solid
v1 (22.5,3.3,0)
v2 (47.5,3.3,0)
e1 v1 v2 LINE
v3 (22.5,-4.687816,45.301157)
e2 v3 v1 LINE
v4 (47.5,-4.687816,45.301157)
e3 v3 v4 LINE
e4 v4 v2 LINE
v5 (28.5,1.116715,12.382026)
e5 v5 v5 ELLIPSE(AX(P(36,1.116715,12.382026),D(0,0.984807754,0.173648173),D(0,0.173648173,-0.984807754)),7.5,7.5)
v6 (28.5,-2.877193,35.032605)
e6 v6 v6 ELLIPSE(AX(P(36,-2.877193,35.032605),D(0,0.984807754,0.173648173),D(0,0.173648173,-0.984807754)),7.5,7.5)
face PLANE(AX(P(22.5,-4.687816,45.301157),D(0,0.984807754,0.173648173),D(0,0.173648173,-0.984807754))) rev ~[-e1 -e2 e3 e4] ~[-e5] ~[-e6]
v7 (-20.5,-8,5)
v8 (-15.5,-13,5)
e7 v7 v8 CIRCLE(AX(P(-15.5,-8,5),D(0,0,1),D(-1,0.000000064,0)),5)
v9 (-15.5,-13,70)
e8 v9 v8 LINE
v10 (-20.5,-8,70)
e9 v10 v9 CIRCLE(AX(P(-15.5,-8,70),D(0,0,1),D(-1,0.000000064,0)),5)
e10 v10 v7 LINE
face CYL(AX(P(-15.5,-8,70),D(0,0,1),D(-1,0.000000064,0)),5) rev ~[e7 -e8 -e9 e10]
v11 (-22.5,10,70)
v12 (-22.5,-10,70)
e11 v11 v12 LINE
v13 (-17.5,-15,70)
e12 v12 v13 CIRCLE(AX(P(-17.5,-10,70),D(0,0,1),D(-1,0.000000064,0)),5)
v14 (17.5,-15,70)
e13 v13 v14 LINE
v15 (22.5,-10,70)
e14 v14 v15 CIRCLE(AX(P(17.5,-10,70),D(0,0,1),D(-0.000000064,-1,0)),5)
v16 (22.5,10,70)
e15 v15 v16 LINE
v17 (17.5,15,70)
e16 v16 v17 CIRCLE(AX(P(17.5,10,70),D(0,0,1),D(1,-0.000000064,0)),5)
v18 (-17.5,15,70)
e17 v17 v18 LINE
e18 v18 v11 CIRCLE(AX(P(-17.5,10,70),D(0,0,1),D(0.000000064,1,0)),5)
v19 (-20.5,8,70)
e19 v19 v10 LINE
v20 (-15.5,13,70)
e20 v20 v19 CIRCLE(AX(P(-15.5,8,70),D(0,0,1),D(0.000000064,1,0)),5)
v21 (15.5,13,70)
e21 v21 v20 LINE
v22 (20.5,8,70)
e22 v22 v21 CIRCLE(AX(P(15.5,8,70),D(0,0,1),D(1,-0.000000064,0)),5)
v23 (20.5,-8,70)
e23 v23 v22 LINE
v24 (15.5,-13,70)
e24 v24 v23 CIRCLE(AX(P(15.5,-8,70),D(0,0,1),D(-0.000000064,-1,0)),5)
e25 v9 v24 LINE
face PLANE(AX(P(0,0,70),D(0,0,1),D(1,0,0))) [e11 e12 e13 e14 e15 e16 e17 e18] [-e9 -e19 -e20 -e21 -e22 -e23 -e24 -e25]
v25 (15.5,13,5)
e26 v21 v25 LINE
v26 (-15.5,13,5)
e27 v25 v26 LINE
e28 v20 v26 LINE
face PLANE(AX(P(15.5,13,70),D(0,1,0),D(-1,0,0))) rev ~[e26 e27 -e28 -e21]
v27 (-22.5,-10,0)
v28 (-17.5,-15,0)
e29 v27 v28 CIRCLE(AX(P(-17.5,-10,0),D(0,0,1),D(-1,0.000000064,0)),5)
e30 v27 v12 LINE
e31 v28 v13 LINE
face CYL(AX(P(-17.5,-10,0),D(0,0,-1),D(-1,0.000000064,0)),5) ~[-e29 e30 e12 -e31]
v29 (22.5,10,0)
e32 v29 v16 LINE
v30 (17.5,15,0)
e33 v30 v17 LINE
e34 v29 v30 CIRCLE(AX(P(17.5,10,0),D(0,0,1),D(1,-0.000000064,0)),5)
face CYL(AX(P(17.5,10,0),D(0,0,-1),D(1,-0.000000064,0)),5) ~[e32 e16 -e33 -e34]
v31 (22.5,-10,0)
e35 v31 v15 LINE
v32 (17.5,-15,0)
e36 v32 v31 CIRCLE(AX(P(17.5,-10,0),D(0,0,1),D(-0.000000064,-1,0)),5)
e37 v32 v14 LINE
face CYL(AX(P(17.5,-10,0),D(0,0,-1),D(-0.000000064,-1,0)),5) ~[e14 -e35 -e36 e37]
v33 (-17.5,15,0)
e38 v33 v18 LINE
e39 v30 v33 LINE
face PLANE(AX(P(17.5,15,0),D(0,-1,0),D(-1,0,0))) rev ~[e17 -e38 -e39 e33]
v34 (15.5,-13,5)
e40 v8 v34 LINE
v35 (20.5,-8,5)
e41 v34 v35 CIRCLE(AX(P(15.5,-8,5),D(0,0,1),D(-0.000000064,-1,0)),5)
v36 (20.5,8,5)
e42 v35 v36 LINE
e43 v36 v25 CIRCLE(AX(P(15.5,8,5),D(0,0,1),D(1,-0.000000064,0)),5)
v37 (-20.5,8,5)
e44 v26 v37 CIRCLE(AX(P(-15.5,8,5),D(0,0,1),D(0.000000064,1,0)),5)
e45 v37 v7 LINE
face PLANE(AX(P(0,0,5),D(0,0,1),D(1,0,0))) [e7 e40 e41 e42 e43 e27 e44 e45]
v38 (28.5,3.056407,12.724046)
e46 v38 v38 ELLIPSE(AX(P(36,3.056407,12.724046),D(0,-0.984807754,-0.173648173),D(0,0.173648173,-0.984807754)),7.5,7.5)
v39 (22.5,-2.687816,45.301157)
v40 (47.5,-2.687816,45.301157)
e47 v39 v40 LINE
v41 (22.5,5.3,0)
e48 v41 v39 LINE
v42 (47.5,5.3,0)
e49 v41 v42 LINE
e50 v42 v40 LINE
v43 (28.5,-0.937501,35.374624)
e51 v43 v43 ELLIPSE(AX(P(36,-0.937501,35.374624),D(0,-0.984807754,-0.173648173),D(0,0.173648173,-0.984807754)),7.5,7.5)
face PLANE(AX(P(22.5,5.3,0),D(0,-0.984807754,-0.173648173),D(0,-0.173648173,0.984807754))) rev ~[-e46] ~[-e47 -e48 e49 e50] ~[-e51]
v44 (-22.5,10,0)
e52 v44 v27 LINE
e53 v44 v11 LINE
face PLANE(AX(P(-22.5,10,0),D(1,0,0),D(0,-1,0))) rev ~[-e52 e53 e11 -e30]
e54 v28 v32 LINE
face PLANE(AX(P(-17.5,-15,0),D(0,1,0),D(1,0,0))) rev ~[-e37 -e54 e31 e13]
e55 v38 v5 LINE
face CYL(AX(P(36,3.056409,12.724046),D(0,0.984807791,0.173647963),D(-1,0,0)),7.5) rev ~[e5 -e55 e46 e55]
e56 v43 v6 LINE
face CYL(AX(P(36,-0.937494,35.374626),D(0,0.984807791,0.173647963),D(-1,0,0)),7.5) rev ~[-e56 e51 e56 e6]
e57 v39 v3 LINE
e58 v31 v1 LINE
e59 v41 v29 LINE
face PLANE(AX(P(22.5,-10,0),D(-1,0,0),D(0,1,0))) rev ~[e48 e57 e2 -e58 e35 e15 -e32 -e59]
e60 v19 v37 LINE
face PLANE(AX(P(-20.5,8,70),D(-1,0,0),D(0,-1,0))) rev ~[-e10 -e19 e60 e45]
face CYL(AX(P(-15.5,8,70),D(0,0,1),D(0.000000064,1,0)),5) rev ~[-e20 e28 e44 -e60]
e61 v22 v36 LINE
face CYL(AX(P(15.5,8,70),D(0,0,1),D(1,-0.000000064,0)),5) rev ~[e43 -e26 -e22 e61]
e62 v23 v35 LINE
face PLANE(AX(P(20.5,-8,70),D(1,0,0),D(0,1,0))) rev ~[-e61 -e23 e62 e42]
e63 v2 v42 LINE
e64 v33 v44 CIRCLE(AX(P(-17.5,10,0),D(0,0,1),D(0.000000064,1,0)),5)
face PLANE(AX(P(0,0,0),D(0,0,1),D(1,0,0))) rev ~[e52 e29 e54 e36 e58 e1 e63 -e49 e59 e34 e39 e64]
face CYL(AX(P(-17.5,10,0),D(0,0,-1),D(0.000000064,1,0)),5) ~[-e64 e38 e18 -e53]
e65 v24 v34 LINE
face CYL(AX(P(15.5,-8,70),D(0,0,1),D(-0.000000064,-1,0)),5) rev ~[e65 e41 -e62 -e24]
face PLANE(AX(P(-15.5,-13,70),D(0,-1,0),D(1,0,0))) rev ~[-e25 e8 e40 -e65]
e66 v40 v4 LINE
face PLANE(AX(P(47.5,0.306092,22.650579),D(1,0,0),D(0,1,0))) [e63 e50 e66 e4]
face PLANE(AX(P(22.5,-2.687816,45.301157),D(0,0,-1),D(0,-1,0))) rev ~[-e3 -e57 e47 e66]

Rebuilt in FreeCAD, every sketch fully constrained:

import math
import FreeCAD as App
import Part
import Sketcher
Q = App.Units.Quantity


def add_polygon(sketch, points):
    """Adds a closed chain of lines whose ends are joined by coincident constraints."""
    first, n = sketch.GeometryCount, len(points)
    for a, b in zip(points, points[1:] + points[:1]):
        sketch.addGeometry(Part.LineSegment(App.Vector(*a, 0), App.Vector(*b, 0)), False)
    for i in range(n):
        sketch.addConstraint(Sketcher.Constraint("Coincident", first + i, 2, first + (i + 1) % n, 1))

doc = App.newDocument("Part")
body = doc.addObject("PartDesign::Body", "Body")

sketch1 = doc.addObject("Sketcher::SketchObject", "Sketch")
body.addObject(sketch1)
sketch1.AttachmentSupport = (doc.XY_Plane, [""])
sketch1.MapMode = "FlatFace"
sketch1.addGeometry([
    Part.LineSegment(App.Vector(-22.5, 10, 0), App.Vector(-22.5, -10, 0)),
    Part.ArcOfCircle(Part.Circle(App.Vector(-17.5, -10, 0), App.Vector(0, 0, 1), 5), math.radians(179.999996), math.radians(270.000004)),
    Part.LineSegment(App.Vector(-17.5, -15, 0), App.Vector(17.5, -15, 0)),
    Part.ArcOfCircle(Part.Circle(App.Vector(17.5, -10, 0), App.Vector(0, 0, 1), 5), math.radians(-90.000004), math.radians(0.000004)),
    Part.LineSegment(App.Vector(22.5, -10, 0), App.Vector(22.5, 10, 0)),
    Part.ArcOfCircle(Part.Circle(App.Vector(17.5, 10, 0), App.Vector(0, 0, 1), 5), math.radians(-0.000004), math.radians(90.000004)),
    Part.LineSegment(App.Vector(17.5, 15, 0), App.Vector(-17.5, 15, 0)),
    Part.ArcOfCircle(Part.Circle(App.Vector(-17.5, 10, 0), App.Vector(0, 0, 1), 5), math.radians(89.999996), math.radians(180.000004)),
], False)
sketch1.addConstraint([
    Sketcher.Constraint("Tangent", 0, 2, 1, 1),
    Sketcher.Constraint("Tangent", 1, 2, 2, 1),
    Sketcher.Constraint("Tangent", 2, 2, 3, 1),
    Sketcher.Constraint("Tangent", 3, 2, 4, 1),
    Sketcher.Constraint("Tangent", 4, 2, 5, 1),
    Sketcher.Constraint("Tangent", 5, 2, 6, 1),
    Sketcher.Constraint("Tangent", 6, 2, 7, 1),
    Sketcher.Constraint("Tangent", 7, 2, 0, 1),
    Sketcher.Constraint("Vertical", 0),
    Sketcher.Constraint("Horizontal", 2),
    Sketcher.Constraint("Vertical", 4),
    Sketcher.Constraint("Horizontal", 6),
    Sketcher.Constraint("Equal", 1, 3),
    Sketcher.Constraint("Equal", 3, 5),
    Sketcher.Constraint("Equal", 5, 7),
    Sketcher.Constraint("Symmetric", 1, 3, 5, 3, -1, 1),
    Sketcher.Constraint("Radius", 1, Q("5 mm")),
    Sketcher.Constraint("DistanceX", 2, 1, 2, 2, Q("35 mm")),
    Sketcher.Constraint("DistanceY", 0, 2, 0, 1, Q("20 mm")),
])
pad1 = doc.addObject("PartDesign::Pad", "Pad")
body.addObject(pad1)
pad1.Profile = sketch1
pad1.Length = 70

sketch2 = doc.addObject("Sketcher::SketchObject", "Sketch001")
body.addObject(sketch2)
sketch2.AttachmentSupport = (doc.XY_Plane, [""])
sketch2.MapMode = "FlatFace"
sketch2.AttachmentOffset = App.Placement(App.Vector(0, 0, 70), App.Rotation())
sketch2.addGeometry([
    Part.LineSegment(App.Vector(-20.5, 8, 0), App.Vector(-20.5, -8, 0)),
    Part.ArcOfCircle(Part.Circle(App.Vector(-15.5, -8, 0), App.Vector(0, 0, 1), 5), math.radians(179.999996), math.radians(270.000004)),
    Part.LineSegment(App.Vector(-15.5, -13, 0), App.Vector(15.5, -13, 0)),
    Part.ArcOfCircle(Part.Circle(App.Vector(15.5, -8, 0), App.Vector(0, 0, 1), 5), math.radians(-90.000004), math.radians(0.000004)),
    Part.LineSegment(App.Vector(20.5, -8, 0), App.Vector(20.5, 8, 0)),
    Part.ArcOfCircle(Part.Circle(App.Vector(15.5, 8, 0), App.Vector(0, 0, 1), 5), math.radians(-0.000004), math.radians(90.000004)),
    Part.LineSegment(App.Vector(15.5, 13, 0), App.Vector(-15.5, 13, 0)),
    Part.ArcOfCircle(Part.Circle(App.Vector(-15.5, 8, 0), App.Vector(0, 0, 1), 5), math.radians(89.999996), math.radians(180.000004)),
], False)
sketch2.addConstraint([
    Sketcher.Constraint("Tangent", 0, 2, 1, 1),
    Sketcher.Constraint("Tangent", 1, 2, 2, 1),
    Sketcher.Constraint("Tangent", 2, 2, 3, 1),
    Sketcher.Constraint("Tangent", 3, 2, 4, 1),
    Sketcher.Constraint("Tangent", 4, 2, 5, 1),
    Sketcher.Constraint("Tangent", 5, 2, 6, 1),
    Sketcher.Constraint("Tangent", 6, 2, 7, 1),
    Sketcher.Constraint("Tangent", 7, 2, 0, 1),
    Sketcher.Constraint("Vertical", 0),
    Sketcher.Constraint("Horizontal", 2),
    Sketcher.Constraint("Vertical", 4),
    Sketcher.Constraint("Horizontal", 6),
    Sketcher.Constraint("Equal", 1, 3),
    Sketcher.Constraint("Equal", 3, 5),
    Sketcher.Constraint("Equal", 5, 7),
    Sketcher.Constraint("Symmetric", 1, 3, 5, 3, -1, 1),
    Sketcher.Constraint("Radius", 1, Q("5 mm")),
    Sketcher.Constraint("DistanceX", 2, 1, 2, 2, Q("31 mm")),
    Sketcher.Constraint("DistanceY", 0, 2, 0, 1, Q("16 mm")),
])
pocket1 = doc.addObject("PartDesign::Pocket", "Pocket")
body.addObject(pocket1)
pocket1.Profile = sketch2
pocket1.Length = 65

sketch3 = doc.addObject("Sketcher::SketchObject", "Sketch002")
body.addObject(sketch3)
sketch3.AttachmentSupport = (doc.YZ_Plane, [""])
sketch3.MapMode = "FlatFace"
sketch3.AttachmentOffset = App.Placement(App.Vector(0, 0, 22.5), App.Rotation())
add_polygon(sketch3, [(5.3, 0), (-2.687816, 45.301157), (-4.687816, 45.301157), (3.3, 0)])
sketch3.addConstraint([
    Sketcher.Constraint("Horizontal", 1),
    Sketcher.Constraint("Horizontal", 3),
    Sketcher.Constraint("PointOnObject", 2, 2, -1),
    Sketcher.Constraint("Parallel", 0, 2),
    Sketcher.Constraint("DistanceX", 1, 2, 1, 1, Q("2 mm")),
    Sketcher.Constraint("Angle", 0, Q("100 deg")),
    Sketcher.Constraint("Distance", 0, Q("46 mm")),
    Sketcher.Constraint("DistanceX", -1, 1, 2, 2, Q("3.3 mm")),
])
pad2 = doc.addObject("PartDesign::Pad", "Pad001")
body.addObject(pad2)
pad2.Profile = sketch3
pad2.Length = 25

sketch4 = doc.addObject("Sketcher::SketchObject", "Sketch003")
body.addObject(sketch4)
sketch4.Placement = App.Placement(App.Vector(0, 5.140185, 0.906353), App.Rotation(App.Vector(-1, 0, 0), App.Vector(0, -0.173647963, 0.984807791), App.Vector(0, 0.984807791, 0.173647963), "ZXY"))
sketch4.addGeometry([
    Part.Circle(App.Vector(-36, 35, 0), App.Vector(0, 0, 1), 7.5),
    Part.Circle(App.Vector(-36, 12, 0), App.Vector(0, 0, 1), 7.5),
], False)
sketch4.addConstraint([
    Sketcher.Constraint("Equal", 0, 1),
    Sketcher.Constraint("Vertical", 0, 3, 1, 3),
    Sketcher.Constraint("Diameter", 0, Q("15 mm")),
    Sketcher.Constraint("DistanceX", 0, 3, -1, 1, Q("36 mm")),
    Sketcher.Constraint("DistanceY", -1, 1, 0, 3, Q("35 mm")),
    Sketcher.Constraint("DistanceY", -1, 1, 1, 3, Q("12 mm")),
])
pocket2 = doc.addObject("PartDesign::Pocket", "Pocket001")
body.addObject(pocket2)
pocket2.Profile = sketch4
pocket2.Length = 5

doc.recompute()
